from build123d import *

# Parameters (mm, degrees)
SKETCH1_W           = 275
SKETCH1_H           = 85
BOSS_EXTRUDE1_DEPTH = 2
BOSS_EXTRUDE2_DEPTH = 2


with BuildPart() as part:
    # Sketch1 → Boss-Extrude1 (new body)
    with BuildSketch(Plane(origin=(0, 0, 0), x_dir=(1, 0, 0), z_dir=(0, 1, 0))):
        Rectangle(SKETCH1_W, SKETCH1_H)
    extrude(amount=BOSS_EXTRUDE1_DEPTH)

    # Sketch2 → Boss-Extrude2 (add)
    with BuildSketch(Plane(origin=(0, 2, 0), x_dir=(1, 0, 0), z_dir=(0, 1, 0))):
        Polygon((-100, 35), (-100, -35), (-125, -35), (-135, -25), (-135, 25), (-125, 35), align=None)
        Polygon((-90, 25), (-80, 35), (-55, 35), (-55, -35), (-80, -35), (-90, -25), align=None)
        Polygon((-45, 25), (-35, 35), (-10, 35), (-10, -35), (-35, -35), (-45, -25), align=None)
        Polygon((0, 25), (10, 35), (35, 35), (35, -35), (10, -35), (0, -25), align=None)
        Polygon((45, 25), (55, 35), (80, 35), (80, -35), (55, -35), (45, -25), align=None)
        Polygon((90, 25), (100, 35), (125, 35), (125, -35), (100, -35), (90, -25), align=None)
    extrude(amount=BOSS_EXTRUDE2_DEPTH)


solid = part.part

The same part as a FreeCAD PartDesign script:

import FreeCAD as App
import Part
import Sketcher
from FreeCAD import Vector
Q = App.Units.Quantity


def add_polygon(sketch, points):
    """Adds a closed chain of lines whose ends are joined by coincident constraints."""
    first, n = sketch.GeometryCount, len(points)
    for a, b in zip(points, points[1:] + points[:1]):
        sketch.addGeometry(Part.LineSegment(App.Vector(*a, 0), App.Vector(*b, 0)), False)
    for i in range(n):
        sketch.addConstraint(Sketcher.Constraint("Coincident", first + i, 2, first + (i + 1) % n, 1))

doc = App.newDocument("Part")
body = doc.addObject("PartDesign::Body", "Body")

sketch1 = doc.addObject("Sketcher::SketchObject", "Sketch")
body.addObject(sketch1)
sketch1.AttachmentSupport = (doc.XZ_Plane, [""])
sketch1.MapMode = "FlatFace"
add_polygon(sketch1, [(-138, -42), (-138, 42), (138, 42), (138, -42)])
sketch1.addConstraint([
    Sketcher.Constraint("Vertical", 0),
    Sketcher.Constraint("Horizontal", 1),
    Sketcher.Constraint("Vertical", 2),
    Sketcher.Constraint("Horizontal", 3),
    Sketcher.Constraint("Symmetric", 0, 2, 2, 2, -1, 1),
    Sketcher.Constraint("DistanceX", 1, 1, 1, 2, Q("275 mm")),
    Sketcher.Constraint("DistanceY", 0, 1, 0, 2, Q("85 mm")),
])
pad1 = doc.addObject("PartDesign::Pad", "Pad")
body.addObject(pad1)
pad1.Profile = sketch1
pad1.Length = 2
pad1.Reversed = True

sketch2 = doc.addObject("Sketcher::SketchObject", "Sketch001")
body.addObject(sketch2)
sketch2.AttachmentSupport = (doc.XZ_Plane, [""])
sketch2.MapMode = "FlatFace"
sketch2.AttachmentOffset = App.Placement(Vector(0, 0, -2), App.Rotation())
add_polygon(sketch2, [(-100, 35), (-100, -35), (-125, -35), (-135, -25), (-135, 25), (-125, 35)])
add_polygon(sketch2, [(-80, -35), (-90, -25), (-90, 25), (-80, 35), (-55, 35), (-55, -35)])
add_polygon(sketch2, [(-35, -35), (-45, -25), (-45, 25), (-35, 35), (-10, 35), (-10, -35)])
add_polygon(sketch2, [(10, -35), (0, -25), (0, 25), (10, 35), (35, 35), (35, -35)])
add_polygon(sketch2, [(55, -35), (45, -25), (45, 25), (55, 35), (80, 35), (80, -35)])
add_polygon(sketch2, [(100, -35), (90, -25), (90, 25), (100, 35), (125, 35), (125, -35)])
sketch2.addConstraint([
    Sketcher.Constraint("Vertical", 0),
    Sketcher.Constraint("Horizontal", 1),
    Sketcher.Constraint("Vertical", 3),
    Sketcher.Constraint("Horizontal", 5),
    Sketcher.Constraint("Vertical", 7),
    Sketcher.Constraint("Horizontal", 9),
    Sketcher.Constraint("Vertical", 10),
    Sketcher.Constraint("Horizontal", 11),
    Sketcher.Constraint("Vertical", 13),
    Sketcher.Constraint("Horizontal", 15),
    Sketcher.Constraint("Vertical", 16),
    Sketcher.Constraint("Horizontal", 17),
    Sketcher.Constraint("Vertical", 19),
    Sketcher.Constraint("Horizontal", 21),
    Sketcher.Constraint("Vertical", 22),
    Sketcher.Constraint("Horizontal", 23),
    Sketcher.Constraint("Vertical", 25),
    Sketcher.Constraint("Horizontal", 27),
    Sketcher.Constraint("Vertical", 28),
    Sketcher.Constraint("Horizontal", 29),
    Sketcher.Constraint("Vertical", 31),
    Sketcher.Constraint("Horizontal", 33),
    Sketcher.Constraint("Vertical", 34),
    Sketcher.Constraint("Horizontal", 35),
    Sketcher.Constraint("Symmetric", 18, 2, 19, 2, -1, 1),
    Sketcher.Constraint("Symmetric", 16, 2, 20, 2, -1, 1),
    Sketcher.Constraint("Symmetric", 14, 2, 22, 2, -1, 1),
    Sketcher.Constraint("Symmetric", 13, 2, 24, 2, -1, 1),
    Sketcher.Constraint("Symmetric", 10, 2, 26, 2, -1, 1),
    Sketcher.Constraint("Symmetric", 8, 2, 28, 2, -1, 1),
    Sketcher.Constraint("Symmetric", 7, 2, 30, 2, -1, 1),
    Sketcher.Constraint("Symmetric", 0, 2, 32, 2, -1, 1),
    Sketcher.Constraint("Symmetric", 4, 2, 34, 2, -1, 1),
    Sketcher.Constraint("Symmetric", 17, 2, 22, 2, -2),
    Sketcher.Constraint("Symmetric", 11, 2, 28, 2, -2),
    Sketcher.Constraint("Symmetric", 1, 2, 34, 2, -2),
    Sketcher.Constraint("Perpendicular", 2, 4),
    Sketcher.Constraint("Perpendicular", 4, 6),
    Sketcher.Constraint("Perpendicular", 6, 8),
    Sketcher.Constraint("Perpendicular", 8, 12),
    Sketcher.Constraint("Perpendicular", 12, 14),
    Sketcher.Constraint("Perpendicular", 14, 18),
    Sketcher.Constraint("Perpendicular", 18, 20),
    Sketcher.Constraint("Perpendicular", 20, 24),
    Sketcher.Constraint("Perpendicular", 24, 26),
    Sketcher.Constraint("Perpendicular", 26, 30),
    Sketcher.Constraint("Perpendicular", 30, 32),
    Sketcher.Constraint("Horizontal", 2, 2, 6, 2),
    Sketcher.Constraint("Horizontal", 5, 2, 8, 2),
    Sketcher.Constraint("Horizontal", 6, 2, 12, 2),
    Sketcher.Constraint("Horizontal", 9, 2, 14, 2),
    Sketcher.Constraint("Horizontal", 12, 2, 18, 2),
    Sketcher.Constraint("Horizontal", 13, 2, 19, 2),
    Sketcher.Constraint("Horizontal", 19, 2, 25, 2),
    Sketcher.Constraint("Horizontal", 25, 2, 31, 2),
    Sketcher.Constraint("Equal", 5, 9),
    Sketcher.Constraint("Equal", 11, 15),
    Sketcher.Constraint("DistanceX", 1, 2, 1, 1, Q("25 mm")),
    Sketcher.Constraint("DistanceY", 0, 2, 0, 1, Q("70 mm")),
    Sketcher.Constraint("DistanceY", 3, 1, 3, 2, Q("50 mm")),
])
pad2 = doc.addObject("PartDesign::Pad", "Pad001")
body.addObject(pad2)
pad2.Profile = sketch2
pad2.Length = 2
pad2.Reversed = True

doc.recompute()
